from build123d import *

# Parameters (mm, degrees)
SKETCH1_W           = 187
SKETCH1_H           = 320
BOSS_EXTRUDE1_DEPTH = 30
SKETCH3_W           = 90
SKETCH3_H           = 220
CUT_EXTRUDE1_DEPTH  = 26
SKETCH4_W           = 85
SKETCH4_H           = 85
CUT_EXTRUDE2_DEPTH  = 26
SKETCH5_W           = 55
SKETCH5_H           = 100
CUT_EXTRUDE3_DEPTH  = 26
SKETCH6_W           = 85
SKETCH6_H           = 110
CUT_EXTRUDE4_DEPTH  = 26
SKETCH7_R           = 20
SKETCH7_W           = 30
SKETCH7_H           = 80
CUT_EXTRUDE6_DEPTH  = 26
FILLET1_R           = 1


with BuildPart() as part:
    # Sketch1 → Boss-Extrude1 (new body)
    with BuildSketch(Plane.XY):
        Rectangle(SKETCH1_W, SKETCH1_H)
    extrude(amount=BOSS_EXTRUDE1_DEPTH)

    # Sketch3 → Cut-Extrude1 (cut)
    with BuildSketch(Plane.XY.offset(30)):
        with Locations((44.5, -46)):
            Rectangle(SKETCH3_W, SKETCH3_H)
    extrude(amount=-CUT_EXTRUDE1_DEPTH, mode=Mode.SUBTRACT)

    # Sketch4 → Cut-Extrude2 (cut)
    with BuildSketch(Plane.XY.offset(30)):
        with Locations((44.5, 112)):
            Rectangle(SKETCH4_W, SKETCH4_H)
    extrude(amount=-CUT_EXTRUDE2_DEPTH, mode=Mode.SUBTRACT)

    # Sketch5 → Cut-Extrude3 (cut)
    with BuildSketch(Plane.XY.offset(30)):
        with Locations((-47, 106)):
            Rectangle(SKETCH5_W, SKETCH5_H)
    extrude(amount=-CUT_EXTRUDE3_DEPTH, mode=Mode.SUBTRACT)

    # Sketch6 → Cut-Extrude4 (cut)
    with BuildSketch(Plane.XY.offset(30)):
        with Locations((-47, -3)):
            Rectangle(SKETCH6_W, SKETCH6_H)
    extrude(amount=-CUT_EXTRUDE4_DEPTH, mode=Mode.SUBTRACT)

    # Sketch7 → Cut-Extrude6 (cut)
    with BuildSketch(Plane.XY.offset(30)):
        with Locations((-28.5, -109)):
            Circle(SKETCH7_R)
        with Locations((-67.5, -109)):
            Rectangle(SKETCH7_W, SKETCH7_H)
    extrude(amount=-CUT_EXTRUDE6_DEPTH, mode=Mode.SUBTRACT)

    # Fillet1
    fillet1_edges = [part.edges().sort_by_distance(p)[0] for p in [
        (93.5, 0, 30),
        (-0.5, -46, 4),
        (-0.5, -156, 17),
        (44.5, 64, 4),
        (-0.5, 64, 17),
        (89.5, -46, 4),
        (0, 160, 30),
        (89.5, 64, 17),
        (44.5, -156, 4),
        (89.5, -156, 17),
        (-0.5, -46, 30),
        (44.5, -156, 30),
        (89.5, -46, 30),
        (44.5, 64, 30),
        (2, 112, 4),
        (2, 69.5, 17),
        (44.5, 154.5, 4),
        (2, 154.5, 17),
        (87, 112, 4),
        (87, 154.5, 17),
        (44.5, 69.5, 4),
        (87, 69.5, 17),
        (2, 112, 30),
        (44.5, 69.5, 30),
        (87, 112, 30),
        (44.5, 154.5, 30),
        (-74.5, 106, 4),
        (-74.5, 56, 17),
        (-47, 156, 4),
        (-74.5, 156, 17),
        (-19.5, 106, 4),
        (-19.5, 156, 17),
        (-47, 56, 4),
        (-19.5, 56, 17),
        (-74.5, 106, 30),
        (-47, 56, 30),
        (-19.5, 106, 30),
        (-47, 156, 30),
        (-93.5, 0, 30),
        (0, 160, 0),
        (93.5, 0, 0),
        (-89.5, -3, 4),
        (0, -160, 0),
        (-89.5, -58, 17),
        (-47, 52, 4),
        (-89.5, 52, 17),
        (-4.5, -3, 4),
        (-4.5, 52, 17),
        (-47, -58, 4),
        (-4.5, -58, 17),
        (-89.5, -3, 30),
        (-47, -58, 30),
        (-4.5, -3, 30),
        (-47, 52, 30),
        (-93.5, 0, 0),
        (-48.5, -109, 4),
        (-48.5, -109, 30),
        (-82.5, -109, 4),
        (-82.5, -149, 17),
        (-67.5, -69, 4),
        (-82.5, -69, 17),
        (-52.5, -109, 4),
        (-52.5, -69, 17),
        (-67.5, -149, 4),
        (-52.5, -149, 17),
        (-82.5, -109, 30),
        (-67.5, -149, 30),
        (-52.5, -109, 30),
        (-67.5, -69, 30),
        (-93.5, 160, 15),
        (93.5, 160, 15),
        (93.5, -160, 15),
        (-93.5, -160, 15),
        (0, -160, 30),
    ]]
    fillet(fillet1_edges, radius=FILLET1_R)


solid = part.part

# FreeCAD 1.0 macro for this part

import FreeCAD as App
import Part
import Sketcher
from FreeCAD import Vector

doc = App.newDocument("Part")
body = doc.addObject("PartDesign::Body", "Body")

# Sketch on XY plane
sketch1 = body.newObject("Sketcher::SketchObject", "Sketch")
sketch1.AttachmentSupport = (doc.getObject("XY_Plane"), [""])
sketch1.MapMode = "FlatFace"
sketch1.addGeometry([
    Part.LineSegment(Vector(-94, 160, 0), Vector(-94, -160, 0)),
    Part.LineSegment(Vector(-94, -160, 0), Vector(94, -160, 0)),
    Part.LineSegment(Vector(94, -160, 0), Vector(94, 160, 0)),
    Part.LineSegment(Vector(94, 160, 0), Vector(-94, 160, 0)),
], False)
sketch1.addConstraint([
    Sketcher.Constraint("Coincident", 0, 2, 1, 1),
    Sketcher.Constraint("Coincident", 1, 2, 2, 1),
    Sketcher.Constraint("Coincident", 2, 2, 3, 1),
    Sketcher.Constraint("Coincident", 3, 2, 0, 1),
    Sketcher.Constraint("Vertical", 0),
    Sketcher.Constraint("Horizontal", 1),
    Sketcher.Constraint("Vertical", 2),
    Sketcher.Constraint("Horizontal", 3),
    Sketcher.Constraint("Symmetric", 0, 2, 2, 2, -1, 1),
    Sketcher.Constraint("DistanceX", 1, 1, 1, 2, 187.0),
    Sketcher.Constraint("DistanceY", 0, 2, 0, 1, 320.0),
])
pad1 = body.newObject("PartDesign::Pad", "Pad")
pad1.Profile = sketch1
pad1.Length = 30

# Sketch on XY plane
sketch2 = body.newObject("Sketcher::SketchObject", "Sketch001")
sketch2.AttachmentSupport = (doc.getObject("XY_Plane"), [""])
sketch2.MapMode = "FlatFace"
sketch2.AttachmentOffset = App.Placement(Vector(0, 0, 30), App.Rotation())
sketch2.addGeometry([
    Part.LineSegment(Vector(0, 64, 0), Vector(0, -156, 0)),
    Part.LineSegment(Vector(0, -156, 0), Vector(90, -156, 0)),
    Part.LineSegment(Vector(90, -156, 0), Vector(90, 64, 0)),
    Part.LineSegment(Vector(90, 64, 0), Vector(0, 64, 0)),
], False)
sketch2.addConstraint([
    Sketcher.Constraint("Coincident", 0, 2, 1, 1),
    Sketcher.Constraint("Coincident", 1, 2, 2, 1),
    Sketcher.Constraint("Coincident", 2, 2, 3, 1),
    Sketcher.Constraint("Coincident", 3, 2, 0, 1),
    Sketcher.Constraint("Vertical", 0),
    Sketcher.Constraint("Horizontal", 1),
    Sketcher.Constraint("Vertical", 2),
    Sketcher.Constraint("Horizontal", 3),
    Sketcher.Constraint("DistanceX", 1, 1, 1, 2, 90.0),
    Sketcher.Constraint("DistanceY", 0, 2, 0, 1, 220.0),
    Sketcher.Constraint("DistanceY", 0, 2, -1, 1, 156.0),
    Sketcher.Constraint("DistanceX", 0, 2, -1, 1, 0.5),
])
pocket1 = body.newObject("PartDesign::Pocket", "Pocket")
pocket1.Profile = sketch2
pocket1.Length = 26

# Sketch on XY plane
sketch3 = body.newObject("Sketcher::SketchObject", "Sketch002")
sketch3.AttachmentSupport = (doc.getObject("XY_Plane"), [""])
sketch3.MapMode = "FlatFace"
sketch3.AttachmentOffset = App.Placement(Vector(0, 0, 30), App.Rotation())
sketch3.addGeometry([
    Part.LineSegment(Vector(2, 154, 0), Vector(2, 70, 0)),
    Part.LineSegment(Vector(2, 70, 0), Vector(87, 70, 0)),
    Part.LineSegment(Vector(87, 70, 0), Vector(87, 154, 0)),
    Part.LineSegment(Vector(87, 154, 0), Vector(2, 154, 0)),
], False)
sketch3.addConstraint([
    Sketcher.Constraint("Coincident", 0, 2, 1, 1),
    Sketcher.Constraint("Coincident", 1, 2, 2, 1),
    Sketcher.Constraint("Coincident", 2, 2, 3, 1),
    Sketcher.Constraint("Coincident", 3, 2, 0, 1),
    Sketcher.Constraint("Vertical", 0),
    Sketcher.Constraint("Horizontal", 1),
    Sketcher.Constraint("Vertical", 2),
    Sketcher.Constraint("Horizontal", 3),
    Sketcher.Constraint("Equal", 3, 0),
    Sketcher.Constraint("DistanceX", 1, 1, 1, 2, 85.0),
    Sketcher.Constraint("DistanceX", -1, 1, 0, 2, 2.0),
    Sketcher.Constraint("DistanceY", -1, 1, 0, 2, 69.5),
])
pocket2 = body.newObject("PartDesign::Pocket", "Pocket001")
pocket2.Profile = sketch3
pocket2.Length = 26

# Sketch on XY plane
sketch4 = body.newObject("Sketcher::SketchObject", "Sketch003")
sketch4.AttachmentSupport = (doc.getObject("XY_Plane"), [""])
sketch4.MapMode = "FlatFace"
sketch4.AttachmentOffset = App.Placement(Vector(0, 0, 30), App.Rotation())
sketch4.addGeometry([
    Part.LineSegment(Vector(-74, 156, 0), Vector(-74, 56, 0)),
    Part.LineSegment(Vector(-74, 56, 0), Vector(-20, 56, 0)),
    Part.LineSegment(Vector(-20, 56, 0), Vector(-20, 156, 0)),
    Part.LineSegment(Vector(-20, 156, 0), Vector(-74, 156, 0)),
], False)
sketch4.addConstraint([
    Sketcher.Constraint("Coincident", 0, 2, 1, 1),
    Sketcher.Constraint("Coincident", 1, 2, 2, 1),
    Sketcher.Constraint("Coincident", 2, 2, 3, 1),
    Sketcher.Constraint("Coincident", 3, 2, 0, 1),
    Sketcher.Constraint("Vertical", 0),
    Sketcher.Constraint("Horizontal", 1),
    Sketcher.Constraint("Vertical", 2),
    Sketcher.Constraint("Horizontal", 3),
    Sketcher.Constraint("DistanceX", 1, 1, 1, 2, 55.0),
    Sketcher.Constraint("DistanceY", 0, 2, 0, 1, 100.0),
    Sketcher.Constraint("DistanceY", -1, 1, 0, 2, 56.0),
    Sketcher.Constraint("DistanceX", 0, 2, -1, 1, 74.5),
])
pocket3 = body.newObject("PartDesign::Pocket", "Pocket002")
pocket3.Profile = sketch4
pocket3.Length = 26

# Sketch on XY plane
sketch5 = body.newObject("Sketcher::SketchObject", "Sketch004")
sketch5.AttachmentSupport = (doc.getObject("XY_Plane"), [""])
sketch5.MapMode = "FlatFace"
sketch5.AttachmentOffset = App.Placement(Vector(0, 0, 30), App.Rotation())
sketch5.addGeometry([
    Part.LineSegment(Vector(-90, 52, 0), Vector(-90, -58, 0)),
    Part.LineSegment(Vector(-90, -58, 0), Vector(-4, -58, 0)),
    Part.LineSegment(Vector(-4, -58, 0), Vector(-4, 52, 0)),
    Part.LineSegment(Vector(-4, 52, 0), Vector(-90, 52, 0)),
], False)
sketch5.addConstraint([
    Sketcher.Constraint("Coincident", 0, 2, 1, 1),
    Sketcher.Constraint("Coincident", 1, 2, 2, 1),
    Sketcher.Constraint("Coincident", 2, 2, 3, 1),
    Sketcher.Constraint("Coincident", 3, 2, 0, 1),
    Sketcher.Constraint("Vertical", 0),
    Sketcher.Constraint("Horizontal", 1),
    Sketcher.Constraint("Vertical", 2),
    Sketcher.Constraint("Horizontal", 3),
    Sketcher.Constraint("DistanceX", 1, 1, 1, 2, 85.0),
    Sketcher.Constraint("DistanceY", 0, 2, 0, 1, 110.0),
    Sketcher.Constraint("DistanceY", 0, 2, -1, 1, 58.0),
    Sketcher.Constraint("DistanceX", 0, 2, -1, 1, 89.5),
])
pocket4 = body.newObject("PartDesign::Pocket", "Pocket003")
pocket4.Profile = sketch5
pocket4.Length = 26

# Sketch on XY plane
sketch6 = body.newObject("Sketcher::SketchObject", "Sketch005")
sketch6.AttachmentSupport = (doc.getObject("XY_Plane"), [""])
sketch6.MapMode = "FlatFace"
sketch6.AttachmentOffset = App.Placement(Vector(0, 0, 30), App.Rotation())
sketch6.addGeometry([
    Part.Circle(Vector(-28, -109, 0), Vector(0, 0, 1), 20),  # 0
    Part.LineSegment(Vector(-82, -69, 0), Vector(-82, -149, 0)),  # 1
    Part.LineSegment(Vector(-82, -149, 0), Vector(-52, -149, 0)),  # 2
    Part.LineSegment(Vector(-52, -149, 0), Vector(-52, -69, 0)),  # 3
    Part.LineSegment(Vector(-52, -69, 0), Vector(-82, -69, 0)),  # 4
], False)
sketch6.addConstraint([
    Sketcher.Constraint("Coincident", 1, 2, 2, 1),
    Sketcher.Constraint("Coincident", 2, 2, 3, 1),
    Sketcher.Constraint("Coincident", 3, 2, 4, 1),
    Sketcher.Constraint("Coincident", 4, 2, 1, 1),
    Sketcher.Constraint("Vertical", 1),
    Sketcher.Constraint("Horizontal", 2),
    Sketcher.Constraint("Vertical", 3),
    Sketcher.Constraint("Horizontal", 4),
    Sketcher.Constraint("Diameter", 0, 40.0),
    Sketcher.Constraint("DistanceX", 2, 1, 2, 2, 30.0),
    Sketcher.Constraint("DistanceY", 1, 2, 1, 1, 80.0),
    Sketcher.Constraint("DistanceY", 0, 3, -1, 1, 109.0),
    Sketcher.Constraint("DistanceY", 1, 2, -1, 1, 149.0),
    Sketcher.Constraint("DistanceX", 1, 2, 0, 3, 54.0),
    Sketcher.Constraint("DistanceX", 0, 3, -1, 1, 28.5),
])
pocket5 = body.newObject("PartDesign::Pocket", "Pocket004")
pocket5.Profile = sketch6
pocket5.Length = 26
doc.recompute()

fillet = body.newObject("PartDesign::Fillet", "Fillet")
fillet.Base = (pocket5, ["Edge1"])
fillet.UseAllEdges = True
fillet.Radius = 1

doc.recompute()
